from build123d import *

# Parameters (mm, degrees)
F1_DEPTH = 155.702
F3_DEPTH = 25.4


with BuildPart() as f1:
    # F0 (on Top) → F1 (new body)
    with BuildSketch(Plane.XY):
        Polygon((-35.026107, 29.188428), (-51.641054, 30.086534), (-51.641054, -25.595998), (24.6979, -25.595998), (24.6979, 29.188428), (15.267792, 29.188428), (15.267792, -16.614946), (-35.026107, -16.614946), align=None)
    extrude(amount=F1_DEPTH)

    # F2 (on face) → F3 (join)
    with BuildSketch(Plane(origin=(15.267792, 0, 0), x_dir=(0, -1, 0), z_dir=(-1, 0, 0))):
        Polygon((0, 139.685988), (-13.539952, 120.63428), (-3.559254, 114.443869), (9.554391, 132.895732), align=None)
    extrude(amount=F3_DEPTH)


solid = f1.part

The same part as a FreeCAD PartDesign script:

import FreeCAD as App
import Part
import Sketcher
from FreeCAD import Vector
Q = App.Units.Quantity


def add_polygon(sketch, points):
    """Adds a closed chain of lines whose ends are joined by coincident constraints."""
    first, n = sketch.GeometryCount, len(points)
    for a, b in zip(points, points[1:] + points[:1]):
        sketch.addGeometry(Part.LineSegment(App.Vector(*a, 0), App.Vector(*b, 0)), False)
    for i in range(n):
        sketch.addConstraint(Sketcher.Constraint("Coincident", first + i, 2, first + (i + 1) % n, 1))

doc = App.newDocument("Part")
body = doc.addObject("PartDesign::Body", "Body")

sketch1 = body.newObject("Sketcher::SketchObject", "Sketch")
sketch1.AttachmentSupport = (doc.getObject("XY_Plane"), [""])
sketch1.MapMode = "FlatFace"
add_polygon(sketch1, [(-35.026107, 29.188428), (-51.641054, 30.086534), (-51.641054, -25.595998), (24.6979, -25.595998), (24.6979, 29.188428), (15.267792, 29.188428), (15.267792, -16.614946), (-35.026107, -16.614946)])
sketch1.addConstraint(Sketcher.Constraint("Vertical", 1))
sketch1.addConstraint(Sketcher.Constraint("Horizontal", 2))
sketch1.addConstraint(Sketcher.Constraint("Vertical", 3))
sketch1.addConstraint(Sketcher.Constraint("Horizontal", 4))
sketch1.addConstraint(Sketcher.Constraint("Vertical", 5))
sketch1.addConstraint(Sketcher.Constraint("Horizontal", 6))
sketch1.addConstraint(Sketcher.Constraint("Vertical", 7))
sketch1.addConstraint(Sketcher.Constraint("Horizontal", 4, 2, 7, 2))
sketch1.addConstraint(Sketcher.Constraint("DistanceX", 6, 2, 6, 1, 50.293899))
sketch1.addConstraint(Sketcher.Constraint("DistanceY", 1, 2, -1, 1, 25.595998))
sketch1.addConstraint(Sketcher.Constraint("DistanceX", -1, 1, 2, 2, 24.6979))
sketch1.addConstraint(Sketcher.Constraint("DistanceX", 2, 1, 2, 2, 76.338954))
sketch1.addConstraint(Sketcher.Constraint("DistanceX", 4, 2, 4, 1, 9.430108))
sketch1.addConstraint(Sketcher.Constraint("DistanceY", 1, 2, 1, 1, 55.682532))
sketch1.addConstraint(Sketcher.Constraint("DistanceY", 3, 1, 3, 2, 54.784426))
sketch1.addConstraint(Sketcher.Constraint("DistanceY", 5, 2, 5, 1, 45.803374))
pad1 = body.newObject("PartDesign::Pad", "Pad")
pad1.Profile = sketch1
pad1.Length = Q("6.13 in")

sketch2 = body.newObject("Sketcher::SketchObject", "Sketch001")
sketch2.AttachmentSupport = (doc.getObject("YZ_Plane"), [""])
sketch2.MapMode = "FlatFace"
sketch2.AttachmentOffset = App.Placement(Vector(0, 0, 15.267792), App.Rotation())
add_polygon(sketch2, [(0, 139.685988), (13.539952, 120.63428), (3.559254, 114.443869), (-9.554391, 132.895732)])
sketch2.addConstraint(Sketcher.Constraint("PointOnObject", 3, 2, -2))
sketch2.addConstraint(Sketcher.Constraint("Parallel", 0, 2))
sketch2.addConstraint(Sketcher.Constraint("Perpendicular", 2, 3))
sketch2.addConstraint(Sketcher.Constraint("DistanceY", -1, 1, 0, 2, 120.63428))
sketch2.addConstraint(Sketcher.Constraint("DistanceY", -1, 1, 1, 2, 114.443869))
sketch2.addConstraint(Sketcher.Constraint("DistanceX", 2, 2, -1, 1, 9.554391))
sketch2.addConstraint(Sketcher.Constraint("DistanceY", -1, 1, 3, 2, 139.685988))
sketch2.addConstraint(Sketcher.Constraint("Distance", 0, 23.373016))
pad2 = body.newObject("PartDesign::Pad", "Pad001")
pad2.Profile = sketch2
pad2.Length = Q("1 in")
pad2.Reversed = True

doc.recompute()
